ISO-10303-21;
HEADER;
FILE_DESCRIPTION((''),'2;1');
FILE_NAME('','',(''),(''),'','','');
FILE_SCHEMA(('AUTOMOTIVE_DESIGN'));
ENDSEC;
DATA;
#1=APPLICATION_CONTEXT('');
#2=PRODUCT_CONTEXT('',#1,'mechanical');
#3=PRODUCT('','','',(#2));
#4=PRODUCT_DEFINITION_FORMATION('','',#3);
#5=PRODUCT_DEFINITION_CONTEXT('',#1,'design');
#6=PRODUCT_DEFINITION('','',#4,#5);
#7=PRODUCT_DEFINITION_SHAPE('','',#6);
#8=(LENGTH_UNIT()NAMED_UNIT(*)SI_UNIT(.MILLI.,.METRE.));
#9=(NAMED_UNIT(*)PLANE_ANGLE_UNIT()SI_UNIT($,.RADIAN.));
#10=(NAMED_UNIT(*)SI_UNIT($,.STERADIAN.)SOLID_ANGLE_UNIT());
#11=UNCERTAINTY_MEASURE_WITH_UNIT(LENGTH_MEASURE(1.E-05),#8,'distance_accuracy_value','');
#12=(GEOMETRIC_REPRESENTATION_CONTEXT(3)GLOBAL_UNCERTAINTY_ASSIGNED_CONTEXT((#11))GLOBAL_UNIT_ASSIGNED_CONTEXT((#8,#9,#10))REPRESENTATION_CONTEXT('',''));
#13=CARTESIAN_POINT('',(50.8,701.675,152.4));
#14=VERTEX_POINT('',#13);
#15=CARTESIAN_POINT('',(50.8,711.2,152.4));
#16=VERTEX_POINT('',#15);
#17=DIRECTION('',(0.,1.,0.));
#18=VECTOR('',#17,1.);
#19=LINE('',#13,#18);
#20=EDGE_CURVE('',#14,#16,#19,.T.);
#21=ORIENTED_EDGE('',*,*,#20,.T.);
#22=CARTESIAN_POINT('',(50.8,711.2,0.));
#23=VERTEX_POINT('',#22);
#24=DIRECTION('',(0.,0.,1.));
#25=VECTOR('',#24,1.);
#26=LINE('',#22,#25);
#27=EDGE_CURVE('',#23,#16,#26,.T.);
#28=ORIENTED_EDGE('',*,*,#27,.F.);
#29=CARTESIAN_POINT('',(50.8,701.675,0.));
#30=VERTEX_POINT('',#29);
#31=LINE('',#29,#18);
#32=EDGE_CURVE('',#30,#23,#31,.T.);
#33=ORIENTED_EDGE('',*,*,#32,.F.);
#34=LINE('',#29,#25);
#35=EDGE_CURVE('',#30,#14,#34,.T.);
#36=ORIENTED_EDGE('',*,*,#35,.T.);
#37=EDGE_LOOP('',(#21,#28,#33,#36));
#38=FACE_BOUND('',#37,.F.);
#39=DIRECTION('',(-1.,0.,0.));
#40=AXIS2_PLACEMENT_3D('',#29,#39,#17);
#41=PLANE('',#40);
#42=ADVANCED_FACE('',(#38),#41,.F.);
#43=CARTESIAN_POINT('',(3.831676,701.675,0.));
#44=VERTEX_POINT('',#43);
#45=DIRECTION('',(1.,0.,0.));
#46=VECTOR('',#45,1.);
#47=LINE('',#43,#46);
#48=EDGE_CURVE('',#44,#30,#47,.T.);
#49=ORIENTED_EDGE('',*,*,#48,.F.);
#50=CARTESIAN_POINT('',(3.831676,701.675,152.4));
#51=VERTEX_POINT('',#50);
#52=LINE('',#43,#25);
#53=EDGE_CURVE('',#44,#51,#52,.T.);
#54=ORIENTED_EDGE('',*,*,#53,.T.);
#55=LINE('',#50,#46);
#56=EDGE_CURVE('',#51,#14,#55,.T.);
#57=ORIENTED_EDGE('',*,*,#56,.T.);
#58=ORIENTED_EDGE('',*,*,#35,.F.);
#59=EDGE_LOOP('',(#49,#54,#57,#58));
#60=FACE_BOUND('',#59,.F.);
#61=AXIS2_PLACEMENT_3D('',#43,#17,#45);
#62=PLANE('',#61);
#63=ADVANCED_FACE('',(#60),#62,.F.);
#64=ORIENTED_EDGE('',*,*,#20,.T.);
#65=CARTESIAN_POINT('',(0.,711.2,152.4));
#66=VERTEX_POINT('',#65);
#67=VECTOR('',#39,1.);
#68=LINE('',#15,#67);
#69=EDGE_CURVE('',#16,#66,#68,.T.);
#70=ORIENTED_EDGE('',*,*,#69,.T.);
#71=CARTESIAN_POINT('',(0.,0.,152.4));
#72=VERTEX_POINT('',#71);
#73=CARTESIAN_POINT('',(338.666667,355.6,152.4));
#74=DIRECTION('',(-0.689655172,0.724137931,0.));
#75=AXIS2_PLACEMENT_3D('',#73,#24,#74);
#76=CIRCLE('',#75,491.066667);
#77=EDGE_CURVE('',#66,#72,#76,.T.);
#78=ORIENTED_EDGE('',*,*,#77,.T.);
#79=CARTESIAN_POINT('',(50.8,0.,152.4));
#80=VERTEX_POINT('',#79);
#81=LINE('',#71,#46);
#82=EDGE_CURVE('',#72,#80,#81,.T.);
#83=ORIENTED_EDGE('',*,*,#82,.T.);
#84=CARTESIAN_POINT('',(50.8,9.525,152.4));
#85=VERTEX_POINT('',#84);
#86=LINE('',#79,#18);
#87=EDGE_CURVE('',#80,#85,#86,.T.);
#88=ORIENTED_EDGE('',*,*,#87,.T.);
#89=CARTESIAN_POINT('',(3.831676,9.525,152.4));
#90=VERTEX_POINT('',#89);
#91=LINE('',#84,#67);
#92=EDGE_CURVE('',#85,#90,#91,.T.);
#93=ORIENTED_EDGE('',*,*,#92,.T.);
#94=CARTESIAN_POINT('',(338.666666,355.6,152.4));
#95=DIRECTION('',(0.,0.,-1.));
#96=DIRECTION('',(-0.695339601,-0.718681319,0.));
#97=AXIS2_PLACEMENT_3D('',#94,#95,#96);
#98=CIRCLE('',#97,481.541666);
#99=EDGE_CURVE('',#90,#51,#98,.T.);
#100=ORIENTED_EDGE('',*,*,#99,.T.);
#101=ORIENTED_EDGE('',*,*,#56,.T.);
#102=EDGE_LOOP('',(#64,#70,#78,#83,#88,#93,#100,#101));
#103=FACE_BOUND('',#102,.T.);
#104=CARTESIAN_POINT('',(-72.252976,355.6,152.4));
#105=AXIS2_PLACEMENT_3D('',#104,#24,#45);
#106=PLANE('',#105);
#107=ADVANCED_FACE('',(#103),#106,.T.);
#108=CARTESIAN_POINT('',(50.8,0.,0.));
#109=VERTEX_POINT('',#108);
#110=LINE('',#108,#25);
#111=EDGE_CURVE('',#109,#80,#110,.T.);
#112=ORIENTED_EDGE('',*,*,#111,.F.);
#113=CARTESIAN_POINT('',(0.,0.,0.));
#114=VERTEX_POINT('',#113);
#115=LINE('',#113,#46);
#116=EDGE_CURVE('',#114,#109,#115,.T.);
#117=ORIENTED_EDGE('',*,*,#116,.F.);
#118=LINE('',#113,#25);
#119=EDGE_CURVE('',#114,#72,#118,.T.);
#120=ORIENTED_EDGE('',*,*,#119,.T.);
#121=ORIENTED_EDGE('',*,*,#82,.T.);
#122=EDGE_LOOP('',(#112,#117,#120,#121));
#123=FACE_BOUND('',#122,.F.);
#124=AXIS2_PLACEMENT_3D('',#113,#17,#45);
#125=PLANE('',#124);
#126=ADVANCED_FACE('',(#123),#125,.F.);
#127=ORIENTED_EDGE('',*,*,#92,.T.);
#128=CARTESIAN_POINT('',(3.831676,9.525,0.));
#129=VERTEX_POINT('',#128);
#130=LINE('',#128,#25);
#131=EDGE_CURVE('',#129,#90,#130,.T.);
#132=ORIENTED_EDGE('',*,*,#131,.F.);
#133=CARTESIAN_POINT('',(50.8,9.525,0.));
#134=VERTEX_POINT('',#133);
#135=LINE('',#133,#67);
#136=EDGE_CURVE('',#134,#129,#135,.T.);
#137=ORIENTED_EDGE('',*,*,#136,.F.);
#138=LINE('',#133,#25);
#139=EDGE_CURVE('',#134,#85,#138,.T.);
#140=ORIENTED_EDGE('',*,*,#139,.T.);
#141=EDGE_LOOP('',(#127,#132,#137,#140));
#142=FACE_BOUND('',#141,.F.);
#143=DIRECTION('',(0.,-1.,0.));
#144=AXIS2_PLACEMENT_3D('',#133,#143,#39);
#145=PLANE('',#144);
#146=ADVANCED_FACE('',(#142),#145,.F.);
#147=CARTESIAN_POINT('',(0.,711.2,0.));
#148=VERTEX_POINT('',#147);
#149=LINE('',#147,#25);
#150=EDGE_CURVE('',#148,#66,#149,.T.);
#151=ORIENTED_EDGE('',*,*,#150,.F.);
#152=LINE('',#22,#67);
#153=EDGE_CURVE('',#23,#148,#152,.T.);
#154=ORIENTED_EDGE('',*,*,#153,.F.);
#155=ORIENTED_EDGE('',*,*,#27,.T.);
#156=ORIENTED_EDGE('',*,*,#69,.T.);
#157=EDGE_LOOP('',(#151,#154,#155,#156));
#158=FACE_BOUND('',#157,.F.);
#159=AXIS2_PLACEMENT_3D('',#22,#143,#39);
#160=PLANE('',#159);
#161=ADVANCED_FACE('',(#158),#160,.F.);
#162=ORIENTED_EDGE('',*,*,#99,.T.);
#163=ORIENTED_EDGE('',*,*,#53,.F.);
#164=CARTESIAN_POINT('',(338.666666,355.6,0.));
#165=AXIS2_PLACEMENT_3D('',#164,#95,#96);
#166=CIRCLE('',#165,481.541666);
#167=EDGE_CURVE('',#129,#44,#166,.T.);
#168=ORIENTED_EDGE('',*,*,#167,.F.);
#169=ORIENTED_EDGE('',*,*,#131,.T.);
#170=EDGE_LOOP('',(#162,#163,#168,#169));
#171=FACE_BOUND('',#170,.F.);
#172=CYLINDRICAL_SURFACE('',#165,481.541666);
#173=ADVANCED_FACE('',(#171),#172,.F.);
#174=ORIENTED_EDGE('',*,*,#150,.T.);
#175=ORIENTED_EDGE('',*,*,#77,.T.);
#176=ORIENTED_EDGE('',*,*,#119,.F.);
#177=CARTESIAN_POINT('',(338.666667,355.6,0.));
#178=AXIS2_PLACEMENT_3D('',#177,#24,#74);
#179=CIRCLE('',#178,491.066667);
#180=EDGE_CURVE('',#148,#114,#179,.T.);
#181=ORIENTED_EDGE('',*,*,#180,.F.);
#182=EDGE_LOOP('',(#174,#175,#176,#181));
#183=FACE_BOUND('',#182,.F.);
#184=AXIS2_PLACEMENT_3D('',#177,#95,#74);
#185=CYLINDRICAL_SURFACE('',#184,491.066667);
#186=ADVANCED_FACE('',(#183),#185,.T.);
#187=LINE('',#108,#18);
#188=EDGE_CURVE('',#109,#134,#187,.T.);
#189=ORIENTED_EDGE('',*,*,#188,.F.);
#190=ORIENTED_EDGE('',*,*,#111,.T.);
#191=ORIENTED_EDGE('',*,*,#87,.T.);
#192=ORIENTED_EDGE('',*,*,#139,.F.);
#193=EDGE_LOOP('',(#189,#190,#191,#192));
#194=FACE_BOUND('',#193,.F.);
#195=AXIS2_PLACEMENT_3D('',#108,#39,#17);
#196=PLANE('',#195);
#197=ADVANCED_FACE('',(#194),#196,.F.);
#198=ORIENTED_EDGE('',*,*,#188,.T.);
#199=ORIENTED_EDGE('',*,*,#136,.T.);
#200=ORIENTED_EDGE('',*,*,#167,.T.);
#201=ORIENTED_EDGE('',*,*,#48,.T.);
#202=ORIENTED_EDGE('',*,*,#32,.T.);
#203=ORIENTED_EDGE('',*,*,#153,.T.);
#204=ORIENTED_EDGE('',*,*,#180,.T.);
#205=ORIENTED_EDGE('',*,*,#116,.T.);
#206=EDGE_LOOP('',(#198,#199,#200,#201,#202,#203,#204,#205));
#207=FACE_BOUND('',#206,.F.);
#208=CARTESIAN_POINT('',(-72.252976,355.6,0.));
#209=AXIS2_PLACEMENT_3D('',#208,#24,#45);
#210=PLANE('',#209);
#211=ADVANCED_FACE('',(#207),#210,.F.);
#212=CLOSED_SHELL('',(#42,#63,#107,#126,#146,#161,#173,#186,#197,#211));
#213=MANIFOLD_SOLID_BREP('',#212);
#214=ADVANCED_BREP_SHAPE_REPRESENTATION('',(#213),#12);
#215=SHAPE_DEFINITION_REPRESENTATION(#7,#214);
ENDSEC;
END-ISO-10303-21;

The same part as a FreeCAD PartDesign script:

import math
import FreeCAD as App
import Part
import Sketcher
from FreeCAD import Vector
Q = App.Units.Quantity

doc = App.newDocument("Part")
body = doc.addObject("PartDesign::Body", "Body")

# Sketch on XY plane
sketch1 = body.newObject("Sketcher::SketchObject", "Sketch")
sketch1.AttachmentSupport = (doc.getObject("XY_Plane"), [""])
sketch1.MapMode = "FlatFace"
sketch1.addGeometry([
    Part.LineSegment(Vector(50.8, 711.2, 0), Vector(0, 711.2, 0)),  # 0
    Part.ArcOfCircle(Part.Circle(Vector(338.666667, 355.6, 0), Vector(0, 0, 1), 491.066667), math.radians(133.602819), math.radians(226.397181)),  # 1
    Part.LineSegment(Vector(0, 0, 0), Vector(50.8, 0, 0)),  # 2
    Part.LineSegment(Vector(50.8, 0, 0), Vector(50.8, 9.525, 0)),  # 3
    Part.LineSegment(Vector(50.8, 9.525, 0), Vector(3.831676, 9.525, 0)),  # 4
    Part.ArcOfCircle(Part.Circle(Vector(338.666666, 355.6, 0), Vector(0, 0, 1), 481.541666), math.radians(134.054285), math.radians(225.945715)),  # 5
    Part.LineSegment(Vector(3.831676, 701.675, 0), Vector(50.8, 701.675, 0)),  # 6
    Part.LineSegment(Vector(50.8, 701.675, 0), Vector(50.8, 711.2, 0)),  # 7
], False)
sketch1.addConstraint([
    Sketcher.Constraint("Coincident", 0, 2, 1, 1),
    Sketcher.Constraint("Coincident", 1, 2, 2, 1),
    Sketcher.Constraint("Coincident", 2, 2, 3, 1),
    Sketcher.Constraint("Coincident", 3, 2, 4, 1),
    Sketcher.Constraint("Coincident", 4, 2, 5, 2),
    Sketcher.Constraint("Coincident", 5, 1, 6, 1),
    Sketcher.Constraint("Coincident", 6, 2, 7, 1),
    Sketcher.Constraint("Coincident", 7, 2, 0, 1),
    Sketcher.Constraint("Horizontal", 0),
    Sketcher.Constraint("Horizontal", 2),
    Sketcher.Constraint("Vertical", 3),
    Sketcher.Constraint("Horizontal", 4),
    Sketcher.Constraint("Horizontal", 6),
    Sketcher.Constraint("Vertical", 7),
    Sketcher.Constraint("Coincident", 5, 3, 1, 3),
    Sketcher.Constraint("PointOnObject", 0, 2, -2),
    Sketcher.Constraint("PointOnObject", 2, 2, -1),
    Sketcher.Constraint("Vertical", 0, 2, 1, 2),
    Sketcher.Constraint("Vertical", 4, 2, 5, 1),
    Sketcher.Constraint("Vertical", 3, 2, 6, 2),
    Sketcher.Constraint("DistanceX", 0, 2, 0, 1, Q("2 in")),
    Sketcher.Constraint("DistanceY", -1, 1, 1, 3, Q("14 in")),
    Sketcher.Constraint("DistanceY", 3, 1, 3, 2, Q("0.375 in")),
    Sketcher.Constraint("Radius", 1, 491.066667),
    Sketcher.Constraint("Radius", 5, 481.541666),
])
pad1 = body.newObject("PartDesign::Pad", "Pad")
pad1.Profile = sketch1
pad1.Length = Q("6 in")

doc.recompute()
